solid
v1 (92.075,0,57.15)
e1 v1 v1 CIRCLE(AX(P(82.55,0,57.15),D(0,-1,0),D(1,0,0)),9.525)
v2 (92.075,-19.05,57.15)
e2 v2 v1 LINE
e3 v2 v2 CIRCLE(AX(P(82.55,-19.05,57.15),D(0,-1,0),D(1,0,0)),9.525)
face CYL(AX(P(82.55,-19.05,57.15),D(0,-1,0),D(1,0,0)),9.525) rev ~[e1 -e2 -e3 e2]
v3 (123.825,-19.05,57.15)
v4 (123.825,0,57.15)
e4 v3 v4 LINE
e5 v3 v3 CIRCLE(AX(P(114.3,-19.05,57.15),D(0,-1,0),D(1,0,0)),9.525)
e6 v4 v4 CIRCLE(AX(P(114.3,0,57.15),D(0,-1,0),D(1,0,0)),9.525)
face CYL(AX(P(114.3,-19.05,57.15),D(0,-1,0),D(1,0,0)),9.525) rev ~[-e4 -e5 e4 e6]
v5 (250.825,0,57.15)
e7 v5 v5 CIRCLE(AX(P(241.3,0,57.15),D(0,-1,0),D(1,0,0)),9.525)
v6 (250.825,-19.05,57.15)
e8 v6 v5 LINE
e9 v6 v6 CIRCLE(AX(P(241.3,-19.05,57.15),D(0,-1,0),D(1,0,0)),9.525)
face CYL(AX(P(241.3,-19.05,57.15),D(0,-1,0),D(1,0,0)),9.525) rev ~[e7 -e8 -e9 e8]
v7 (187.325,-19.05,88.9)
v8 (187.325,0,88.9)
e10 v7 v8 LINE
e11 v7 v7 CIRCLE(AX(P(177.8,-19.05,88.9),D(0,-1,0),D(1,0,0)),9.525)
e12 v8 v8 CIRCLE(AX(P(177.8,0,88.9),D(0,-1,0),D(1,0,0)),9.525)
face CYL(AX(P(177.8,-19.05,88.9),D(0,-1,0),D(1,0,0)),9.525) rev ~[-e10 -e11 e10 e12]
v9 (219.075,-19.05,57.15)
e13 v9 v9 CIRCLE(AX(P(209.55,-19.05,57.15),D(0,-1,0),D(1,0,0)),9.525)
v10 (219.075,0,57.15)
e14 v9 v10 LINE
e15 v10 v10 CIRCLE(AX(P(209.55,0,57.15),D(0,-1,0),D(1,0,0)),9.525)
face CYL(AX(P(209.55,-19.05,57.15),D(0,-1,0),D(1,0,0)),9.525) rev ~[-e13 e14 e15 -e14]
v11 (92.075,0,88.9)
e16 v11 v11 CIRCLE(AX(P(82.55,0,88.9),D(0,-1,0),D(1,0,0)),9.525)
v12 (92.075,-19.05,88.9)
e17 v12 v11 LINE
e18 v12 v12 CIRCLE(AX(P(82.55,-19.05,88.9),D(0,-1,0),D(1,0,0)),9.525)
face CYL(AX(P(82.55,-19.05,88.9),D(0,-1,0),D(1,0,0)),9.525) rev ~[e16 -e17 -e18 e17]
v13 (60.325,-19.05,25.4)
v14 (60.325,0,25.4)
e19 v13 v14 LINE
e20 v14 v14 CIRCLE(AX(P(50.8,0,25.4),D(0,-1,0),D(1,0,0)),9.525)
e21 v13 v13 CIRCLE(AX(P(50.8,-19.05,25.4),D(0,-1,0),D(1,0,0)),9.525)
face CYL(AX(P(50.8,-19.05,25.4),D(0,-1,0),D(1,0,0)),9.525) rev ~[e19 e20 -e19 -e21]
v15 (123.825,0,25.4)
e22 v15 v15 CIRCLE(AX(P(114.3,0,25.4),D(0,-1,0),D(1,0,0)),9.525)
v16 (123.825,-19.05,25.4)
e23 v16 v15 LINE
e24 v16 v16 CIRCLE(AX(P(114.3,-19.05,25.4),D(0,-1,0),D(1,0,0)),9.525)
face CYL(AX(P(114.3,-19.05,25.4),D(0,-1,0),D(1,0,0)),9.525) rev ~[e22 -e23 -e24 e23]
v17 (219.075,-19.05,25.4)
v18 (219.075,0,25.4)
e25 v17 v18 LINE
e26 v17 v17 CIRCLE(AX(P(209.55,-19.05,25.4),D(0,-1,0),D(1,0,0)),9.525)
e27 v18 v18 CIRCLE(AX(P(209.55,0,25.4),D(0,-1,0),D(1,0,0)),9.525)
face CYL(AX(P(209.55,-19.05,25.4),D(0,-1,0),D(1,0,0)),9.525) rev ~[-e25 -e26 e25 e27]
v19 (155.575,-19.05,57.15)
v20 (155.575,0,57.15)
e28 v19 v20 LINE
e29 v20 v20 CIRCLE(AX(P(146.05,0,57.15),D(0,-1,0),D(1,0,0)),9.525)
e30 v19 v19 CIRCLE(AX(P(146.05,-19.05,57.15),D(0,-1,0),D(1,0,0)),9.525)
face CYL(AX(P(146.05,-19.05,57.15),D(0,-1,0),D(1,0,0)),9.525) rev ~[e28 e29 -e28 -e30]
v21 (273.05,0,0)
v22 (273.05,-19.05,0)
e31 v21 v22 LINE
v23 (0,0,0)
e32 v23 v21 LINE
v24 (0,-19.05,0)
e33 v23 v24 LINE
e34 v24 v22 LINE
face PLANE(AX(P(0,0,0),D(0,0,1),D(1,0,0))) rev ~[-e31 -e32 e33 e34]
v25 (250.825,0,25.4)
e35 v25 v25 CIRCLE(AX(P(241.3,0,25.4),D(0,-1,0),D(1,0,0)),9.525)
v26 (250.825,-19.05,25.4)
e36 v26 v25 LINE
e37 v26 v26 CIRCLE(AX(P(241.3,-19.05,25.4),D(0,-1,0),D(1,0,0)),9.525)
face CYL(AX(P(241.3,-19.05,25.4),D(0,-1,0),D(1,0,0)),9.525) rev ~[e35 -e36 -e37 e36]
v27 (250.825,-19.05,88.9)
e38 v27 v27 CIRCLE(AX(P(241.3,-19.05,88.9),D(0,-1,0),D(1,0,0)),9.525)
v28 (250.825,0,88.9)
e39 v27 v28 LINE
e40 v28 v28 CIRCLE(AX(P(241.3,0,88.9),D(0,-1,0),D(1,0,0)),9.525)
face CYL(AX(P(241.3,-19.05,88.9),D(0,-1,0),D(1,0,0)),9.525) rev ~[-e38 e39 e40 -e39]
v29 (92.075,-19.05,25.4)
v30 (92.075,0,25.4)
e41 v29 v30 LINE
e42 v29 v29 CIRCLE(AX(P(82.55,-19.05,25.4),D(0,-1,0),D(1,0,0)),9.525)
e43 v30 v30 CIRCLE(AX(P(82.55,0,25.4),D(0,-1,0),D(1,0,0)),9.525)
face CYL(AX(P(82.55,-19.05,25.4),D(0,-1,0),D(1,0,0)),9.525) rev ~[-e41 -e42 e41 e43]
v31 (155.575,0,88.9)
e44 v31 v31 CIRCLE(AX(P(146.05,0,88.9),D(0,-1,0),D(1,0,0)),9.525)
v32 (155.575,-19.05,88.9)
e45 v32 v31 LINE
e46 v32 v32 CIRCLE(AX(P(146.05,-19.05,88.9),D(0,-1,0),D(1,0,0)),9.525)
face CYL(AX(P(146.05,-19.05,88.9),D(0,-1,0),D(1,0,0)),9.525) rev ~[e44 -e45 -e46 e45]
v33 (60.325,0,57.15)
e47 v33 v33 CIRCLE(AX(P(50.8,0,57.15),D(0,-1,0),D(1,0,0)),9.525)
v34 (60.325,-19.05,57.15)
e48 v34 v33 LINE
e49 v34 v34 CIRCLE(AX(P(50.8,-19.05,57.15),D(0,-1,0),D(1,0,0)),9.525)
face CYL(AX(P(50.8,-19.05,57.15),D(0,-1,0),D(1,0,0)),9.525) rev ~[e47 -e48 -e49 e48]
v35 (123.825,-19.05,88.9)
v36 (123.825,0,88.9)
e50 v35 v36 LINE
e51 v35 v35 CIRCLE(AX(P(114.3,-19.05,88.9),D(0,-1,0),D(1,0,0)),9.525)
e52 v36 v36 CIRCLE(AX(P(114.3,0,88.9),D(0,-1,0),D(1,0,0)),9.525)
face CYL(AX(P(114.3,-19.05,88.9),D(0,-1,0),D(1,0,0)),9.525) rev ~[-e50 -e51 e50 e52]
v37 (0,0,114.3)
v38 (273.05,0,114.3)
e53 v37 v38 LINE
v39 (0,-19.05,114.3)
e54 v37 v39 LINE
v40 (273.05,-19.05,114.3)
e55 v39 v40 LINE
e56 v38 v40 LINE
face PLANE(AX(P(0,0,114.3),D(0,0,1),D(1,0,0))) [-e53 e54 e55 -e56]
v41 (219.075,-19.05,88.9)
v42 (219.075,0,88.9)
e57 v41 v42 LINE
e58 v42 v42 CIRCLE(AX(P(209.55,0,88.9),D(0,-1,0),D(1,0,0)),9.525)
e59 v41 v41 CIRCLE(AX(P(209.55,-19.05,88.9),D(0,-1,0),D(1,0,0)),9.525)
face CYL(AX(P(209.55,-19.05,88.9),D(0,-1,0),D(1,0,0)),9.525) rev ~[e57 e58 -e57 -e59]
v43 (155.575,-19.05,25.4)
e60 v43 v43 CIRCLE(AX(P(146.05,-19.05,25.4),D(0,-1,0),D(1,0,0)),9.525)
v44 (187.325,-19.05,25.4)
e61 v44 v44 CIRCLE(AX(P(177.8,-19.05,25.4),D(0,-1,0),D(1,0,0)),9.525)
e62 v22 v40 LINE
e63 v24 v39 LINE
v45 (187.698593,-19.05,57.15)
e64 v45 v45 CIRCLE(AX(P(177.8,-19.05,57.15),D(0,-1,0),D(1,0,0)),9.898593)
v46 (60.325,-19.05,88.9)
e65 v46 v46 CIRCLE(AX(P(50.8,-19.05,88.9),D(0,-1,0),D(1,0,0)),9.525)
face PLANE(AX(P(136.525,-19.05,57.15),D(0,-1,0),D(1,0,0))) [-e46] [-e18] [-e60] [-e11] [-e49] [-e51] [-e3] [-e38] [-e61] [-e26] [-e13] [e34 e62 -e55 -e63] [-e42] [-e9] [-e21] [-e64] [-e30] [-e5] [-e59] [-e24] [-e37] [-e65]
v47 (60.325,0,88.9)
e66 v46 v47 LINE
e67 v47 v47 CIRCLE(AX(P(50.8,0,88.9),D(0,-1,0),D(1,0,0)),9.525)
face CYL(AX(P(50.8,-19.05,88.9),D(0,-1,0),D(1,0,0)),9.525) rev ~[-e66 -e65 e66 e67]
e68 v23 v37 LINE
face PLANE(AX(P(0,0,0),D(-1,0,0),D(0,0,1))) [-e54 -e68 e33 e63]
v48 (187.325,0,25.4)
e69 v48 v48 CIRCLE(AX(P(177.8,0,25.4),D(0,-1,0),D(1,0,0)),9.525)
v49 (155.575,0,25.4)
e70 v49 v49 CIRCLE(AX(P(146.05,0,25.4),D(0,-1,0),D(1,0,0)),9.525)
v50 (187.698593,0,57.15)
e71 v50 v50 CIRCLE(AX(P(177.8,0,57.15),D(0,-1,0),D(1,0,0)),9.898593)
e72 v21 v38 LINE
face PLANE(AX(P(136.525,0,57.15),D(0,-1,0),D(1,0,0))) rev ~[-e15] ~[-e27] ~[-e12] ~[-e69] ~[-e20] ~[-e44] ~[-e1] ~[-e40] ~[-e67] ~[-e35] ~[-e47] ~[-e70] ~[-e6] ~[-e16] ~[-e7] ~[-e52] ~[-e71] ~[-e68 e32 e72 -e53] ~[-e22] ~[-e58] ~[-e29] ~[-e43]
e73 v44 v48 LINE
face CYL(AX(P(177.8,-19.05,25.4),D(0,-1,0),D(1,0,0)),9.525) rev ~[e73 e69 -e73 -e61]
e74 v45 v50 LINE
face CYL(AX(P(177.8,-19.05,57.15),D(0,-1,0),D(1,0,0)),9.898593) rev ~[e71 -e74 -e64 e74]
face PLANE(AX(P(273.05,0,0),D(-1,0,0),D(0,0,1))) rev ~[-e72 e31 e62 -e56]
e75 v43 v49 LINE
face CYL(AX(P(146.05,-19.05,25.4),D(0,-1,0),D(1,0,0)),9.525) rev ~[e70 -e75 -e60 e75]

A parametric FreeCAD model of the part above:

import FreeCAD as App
import Part
import Sketcher

V = App.Vector
Q = App.Units.Quantity

doc = App.newDocument("Part")
body = doc.addObject("PartDesign::Body", "Body")

# Sketch on XZ plane
sketch1 = body.newObject("Sketcher::SketchObject", "Sketch")
sketch1.AttachmentSupport = (doc.getObject("XZ_Plane"), [""])
sketch1.MapMode = "FlatFace"
sketch1.addGeometry([
    Part.LineSegment(V(0, 114, 0), V(0, 0, 0)),
    Part.LineSegment(V(0, 0, 0), V(273, 0, 0)),
    Part.LineSegment(V(273, 0, 0), V(273, 114, 0)),
    Part.LineSegment(V(273, 114, 0), V(0, 114, 0)),
], False)
sketch1.addConstraint([
    Sketcher.Constraint("Coincident", 0, 2, 1, 1),
    Sketcher.Constraint("Coincident", 1, 2, 2, 1),
    Sketcher.Constraint("Coincident", 2, 2, 3, 1),
    Sketcher.Constraint("Coincident", 3, 2, 0, 1),
    Sketcher.Constraint("Vertical", 0),
    Sketcher.Constraint("Horizontal", 1),
    Sketcher.Constraint("Vertical", 2),
    Sketcher.Constraint("Horizontal", 3),
    Sketcher.Constraint("Coincident", 0, 2, -1, 1),
    Sketcher.Constraint("DistanceY", 0, 2, 0, 1, Q("4.5 in")),
    Sketcher.Constraint("DistanceX", 1, 1, 1, 2, Q("10.75 in")),
])
pad1 = body.newObject("PartDesign::Pad", "Pad")
pad1.Profile = sketch1
pad1.Length = Q("0.75 in")

# Sketch on XZ plane
sketch2 = body.newObject("Sketcher::SketchObject", "Sketch001")
sketch2.AttachmentSupport = (doc.getObject("XZ_Plane"), [""])
sketch2.MapMode = "FlatFace"
sketch2.AttachmentOffset = App.Placement(V(0, 0, 0.75 * 25.4), App.Rotation())
sketch2.addGeometry([
    Part.Circle(V(51, 89, 0), V(0, 0, 1), 10),  # 0
    Part.Circle(V(51, 57, 0), V(0, 0, 1), 10),  # 1
    Part.Circle(V(83, 89, 0), V(0, 0, 1), 10),  # 2
    Part.Circle(V(83, 57, 0), V(0, 0, 1), 10),  # 3
    Part.Circle(V(114, 89, 0), V(0, 0, 1), 10),  # 4
    Part.Circle(V(114, 57, 0), V(0, 0, 1), 10),  # 5
    Part.Circle(V(51, 25, 0), V(0, 0, 1), 10),  # 6
    Part.Circle(V(83, 25, 0), V(0, 0, 1), 10),  # 7
    Part.Circle(V(114, 25, 0), V(0, 0, 1), 10),  # 8
    Part.Circle(V(146, 89, 0), V(0, 0, 1), 10),  # 9
    Part.Circle(V(146, 57, 0), V(0, 0, 1), 10),  # 10
    Part.Circle(V(146, 25, 0), V(0, 0, 1), 10),  # 11
    Part.Circle(V(178, 89, 0), V(0, 0, 1), 10),  # 12
    Part.Circle(V(178, 57, 0), V(0, 0, 1), 10),  # 13
    Part.Circle(V(178, 25, 0), V(0, 0, 1), 10),  # 14
    Part.Circle(V(210, 89, 0), V(0, 0, 1), 10),  # 15
    Part.Circle(V(210, 57, 0), V(0, 0, 1), 10),  # 16
    Part.Circle(V(210, 25, 0), V(0, 0, 1), 10),  # 17
    Part.Circle(V(241, 89, 0), V(0, 0, 1), 10),  # 18
    Part.Circle(V(241, 57, 0), V(0, 0, 1), 10),  # 19
    Part.Circle(V(241, 25, 0), V(0, 0, 1), 10),  # 20
], False)
sketch2.addConstraint([
    Sketcher.Constraint("Equal", 0, 1),
    Sketcher.Constraint("Equal", 1, 2),
    Sketcher.Constraint("Equal", 2, 3),
    Sketcher.Constraint("Equal", 3, 4),
    Sketcher.Constraint("Equal", 4, 5),
    Sketcher.Constraint("Equal", 5, 6),
    Sketcher.Constraint("Equal", 6, 7),
    Sketcher.Constraint("Equal", 7, 8),
    Sketcher.Constraint("Equal", 8, 9),
    Sketcher.Constraint("Equal", 9, 10),
    Sketcher.Constraint("Equal", 10, 11),
    Sketcher.Constraint("Equal", 11, 12),
    Sketcher.Constraint("Equal", 12, 14),
    Sketcher.Constraint("Equal", 14, 15),
    Sketcher.Constraint("Equal", 15, 16),
    Sketcher.Constraint("Equal", 16, 17),
    Sketcher.Constraint("Equal", 17, 18),
    Sketcher.Constraint("Equal", 18, 19),
    Sketcher.Constraint("Equal", 19, 20),
    Sketcher.Constraint("Horizontal", 0, 3, 2, 3),
    Sketcher.Constraint("Horizontal", 1, 3, 3, 3),
    Sketcher.Constraint("Horizontal", 2, 3, 4, 3),
    Sketcher.Constraint("Horizontal", 3, 3, 5, 3),
    Sketcher.Constraint("Horizontal", 6, 3, 7, 3),
    Sketcher.Constraint("Horizontal", 7, 3, 8, 3),
    Sketcher.Constraint("Horizontal", 4, 3, 9, 3),
    Sketcher.Constraint("Horizontal", 5, 3, 10, 3),
    Sketcher.Constraint("Horizontal", 8, 3, 11, 3),
    Sketcher.Constraint("Horizontal", 9, 3, 12, 3),
    Sketcher.Constraint("Horizontal", 10, 3, 13, 3),
    Sketcher.Constraint("Horizontal", 11, 3, 14, 3),
    Sketcher.Constraint("Horizontal", 12, 3, 15, 3),
    Sketcher.Constraint("Horizontal", 13, 3, 16, 3),
    Sketcher.Constraint("Horizontal", 14, 3, 17, 3),
    Sketcher.Constraint("Horizontal", 15, 3, 18, 3),
    Sketcher.Constraint("Horizontal", 16, 3, 19, 3),
    Sketcher.Constraint("Horizontal", 17, 3, 20, 3),
    Sketcher.Constraint("Vertical", 0, 3, 1, 3),
    Sketcher.Constraint("Vertical", 2, 3, 3, 3),
    Sketcher.Constraint("Vertical", 4, 3, 5, 3),
    Sketcher.Constraint("Vertical", 1, 3, 6, 3),
    Sketcher.Constraint("Vertical", 3, 3, 7, 3),
    Sketcher.Constraint("Vertical", 5, 3, 8, 3),
    Sketcher.Constraint("Vertical", 9, 3, 10, 3),
    Sketcher.Constraint("Vertical", 10, 3, 11, 3),
    Sketcher.Constraint("Vertical", 12, 3, 13, 3),
    Sketcher.Constraint("Vertical", 13, 3, 14, 3),
    Sketcher.Constraint("Vertical", 15, 3, 16, 3),
    Sketcher.Constraint("Vertical", 16, 3, 17, 3),
    Sketcher.Constraint("Vertical", 18, 3, 19, 3),
    Sketcher.Constraint("Vertical", 19, 3, 20, 3),
    Sketcher.Constraint("Diameter", 0, Q("0.75 in")),
    Sketcher.Constraint("DistanceX", -1, 1, 0, 3, Q("2 in")),
    Sketcher.Constraint("DistanceY", -1, 1, 6, 3, Q("1 in")),
    Sketcher.Constraint("DistanceX", -1, 1, 12, 3, Q("7 in")),
    Sketcher.Constraint("DistanceY", -1, 1, 0, 3, Q("3.5 in")),
    Sketcher.Constraint("DistanceX", -1, 1, 4, 3, Q("4.5 in")),
    Sketcher.Constraint("DistanceX", -1, 1, 18, 3, Q("9.5 in")),
    Sketcher.Constraint("DistanceX", 2, 3, 9, 3, Q("2.5 in")),
    Sketcher.Constraint("DistanceX", 9, 3, 15, 3, Q("2.5 in")),
    Sketcher.Constraint("DistanceY", -1, 1, 1, 3, Q("2.25 in")),
    Sketcher.Constraint("DistanceX", -1, 1, 2, 3, Q("3.25 in")),
    Sketcher.Constraint("Diameter", 13, 19.797186),
])
pocket1 = body.newObject("PartDesign::Pocket", "Pocket")
pocket1.Profile = sketch2
pocket1.Length = Q("1 in")

doc.recompute()
